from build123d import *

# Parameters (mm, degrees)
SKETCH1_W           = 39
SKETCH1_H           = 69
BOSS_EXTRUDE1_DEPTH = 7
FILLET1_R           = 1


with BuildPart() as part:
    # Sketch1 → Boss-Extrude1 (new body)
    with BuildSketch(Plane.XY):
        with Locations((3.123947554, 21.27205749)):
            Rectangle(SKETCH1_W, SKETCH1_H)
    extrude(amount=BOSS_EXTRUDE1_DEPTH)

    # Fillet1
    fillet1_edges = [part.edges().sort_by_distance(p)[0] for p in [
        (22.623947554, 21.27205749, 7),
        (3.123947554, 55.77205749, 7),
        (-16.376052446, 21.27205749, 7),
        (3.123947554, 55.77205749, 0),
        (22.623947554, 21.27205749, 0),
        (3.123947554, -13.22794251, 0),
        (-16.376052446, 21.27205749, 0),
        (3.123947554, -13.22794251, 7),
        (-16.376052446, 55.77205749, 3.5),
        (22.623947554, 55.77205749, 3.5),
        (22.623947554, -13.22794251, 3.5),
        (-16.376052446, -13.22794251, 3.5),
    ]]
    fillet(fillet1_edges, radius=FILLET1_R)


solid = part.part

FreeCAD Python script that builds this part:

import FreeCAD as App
import Part
import Sketcher

V = App.Vector


def add_polygon(sketch, points):
    """Adds a closed chain of lines whose ends are joined by coincident constraints."""
    first, n = sketch.GeometryCount, len(points)
    for a, b in zip(points, points[1:] + points[:1]):
        sketch.addGeometry(Part.LineSegment(App.Vector(*a, 0), App.Vector(*b, 0)), False)
    for i in range(n):
        sketch.addConstraint(Sketcher.Constraint("Coincident", first + i, 2, first + (i + 1) % n, 1))

doc = App.newDocument("Part")
body = doc.addObject("PartDesign::Body", "Body")

# Sketch on XY plane
sketch1 = body.newObject("Sketcher::SketchObject", "Sketch")
sketch1.AttachmentSupport = (doc.getObject("XY_Plane"), [""])
sketch1.MapMode = "FlatFace"
add_polygon(sketch1, [(-16, 56), (-16, -13), (23, -13), (23, 56)])  # lines 0-3
sketch1.addConstraint([
    Sketcher.Constraint("Vertical", 0),
    Sketcher.Constraint("Horizontal", 1),
    Sketcher.Constraint("Vertical", 2),
    Sketcher.Constraint("Horizontal", 3),
    Sketcher.Constraint("DistanceX", 1, 1, 1, 2, 39.0),
    Sketcher.Constraint("DistanceY", 0, 2, 0, 1, 69.0),
    Sketcher.Constraint("DistanceX", 0, 2, -1, 1, 16.376052),
    Sketcher.Constraint("DistanceY", 0, 2, -1, 1, 13.227943),
])
pad1 = body.newObject("PartDesign::Pad", "Pad")
pad1.Profile = sketch1
pad1.Length = 7
doc.recompute()

fillet = body.newObject("PartDesign::Fillet", "Fillet")
fillet.Base = (pad1, ["Edge1"])
fillet.UseAllEdges = True
fillet.Radius = 1

doc.recompute()
